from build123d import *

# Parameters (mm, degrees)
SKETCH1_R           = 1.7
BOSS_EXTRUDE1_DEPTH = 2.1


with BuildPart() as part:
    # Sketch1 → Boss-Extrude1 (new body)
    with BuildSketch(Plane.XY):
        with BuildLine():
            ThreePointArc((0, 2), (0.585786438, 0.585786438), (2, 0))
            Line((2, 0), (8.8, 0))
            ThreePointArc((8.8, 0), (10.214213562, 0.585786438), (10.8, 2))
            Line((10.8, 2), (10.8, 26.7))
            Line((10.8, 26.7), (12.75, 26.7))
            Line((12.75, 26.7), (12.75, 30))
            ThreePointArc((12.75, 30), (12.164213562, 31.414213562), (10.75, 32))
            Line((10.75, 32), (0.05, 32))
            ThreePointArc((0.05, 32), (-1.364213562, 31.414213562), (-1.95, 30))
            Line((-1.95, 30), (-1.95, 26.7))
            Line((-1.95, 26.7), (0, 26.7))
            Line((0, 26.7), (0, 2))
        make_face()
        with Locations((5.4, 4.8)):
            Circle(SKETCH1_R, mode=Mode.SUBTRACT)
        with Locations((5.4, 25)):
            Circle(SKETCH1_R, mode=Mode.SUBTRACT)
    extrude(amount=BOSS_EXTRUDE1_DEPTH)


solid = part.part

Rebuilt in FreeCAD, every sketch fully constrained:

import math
import FreeCAD as App
import Part
import Sketcher
from FreeCAD import Vector

doc = App.newDocument("Part")
params = doc.addObject("Spreadsheet::Sheet", "Params")
for row, (alias, value) in enumerate([
    ("sketch1_radius", "2 mm"),
    ("sketch1_diameter", "3.4 mm"),
    ("sketch1_width", "6.8 mm"),
    ("sketch1_width2", "10.7 mm"),
    ("sketch1_height", "24.7 mm"),
    ("pad1_length", "2.1 mm"),
], start=1):
    params.set(f"A{row}", alias)
    params.set(f"B{row}", "=" + value)
    params.setAlias(f"B{row}", alias)

body = doc.addObject("PartDesign::Body", "Body")

# Sketch on XY plane
sketch1 = doc.addObject("Sketcher::SketchObject", "Sketch")
body.addObject(sketch1)
sketch1.AttachmentSupport = (doc.XY_Plane, [""])
sketch1.MapMode = "FlatFace"
sketch1.addGeometry([
    Part.ArcOfCircle(Part.Circle(Vector(2, 2, 0), Vector(0, 0, 1), 2), math.radians(-180), math.radians(-90)),  # 0
    Part.LineSegment(Vector(2, 0, 0), Vector(8.8, 0, 0)),  # 1
    Part.ArcOfCircle(Part.Circle(Vector(8.8, 2, 0), Vector(0, 0, 1), 2), math.radians(-90), math.radians(0)),  # 2
    Part.LineSegment(Vector(10.8, 2, 0), Vector(10.8, 26.7, 0)),  # 3
    Part.LineSegment(Vector(10.8, 26.7, 0), Vector(12.8, 26.7, 0)),  # 4
    Part.LineSegment(Vector(12.8, 26.7, 0), Vector(12.8, 30, 0)),  # 5
    Part.ArcOfCircle(Part.Circle(Vector(10.7, 30, 0), Vector(0, 0, 1), 2), math.radians(0), math.radians(90)),  # 6
    Part.LineSegment(Vector(10.8, 32, 0), Vector(0.1, 32, 0)),  # 7
    Part.ArcOfCircle(Part.Circle(Vector(0.1, 30, 0), Vector(0, 0, 1), 2), math.radians(90), math.radians(180)),  # 8
    Part.LineSegment(Vector(-1.9, 30, 0), Vector(-1.9, 26.7, 0)),  # 9
    Part.LineSegment(Vector(-1.9, 26.7, 0), Vector(0, 26.7, 0)),  # 10
    Part.LineSegment(Vector(0, 26.7, 0), Vector(0, 2, 0)),  # 11
    Part.Circle(Vector(5.4, 4.8, 0), Vector(0, 0, 1), 1.7),  # 12
    Part.Circle(Vector(5.4, 25, 0), Vector(0, 0, 1), 1.7),  # 13
], False)
sketch1.addConstraint([
    Sketcher.Constraint("Tangent", 0, 2, 1, 1),
    Sketcher.Constraint("Tangent", 1, 2, 2, 1),
    Sketcher.Constraint("Tangent", 2, 2, 3, 1),
    Sketcher.Constraint("Coincident", 3, 2, 4, 1),
    Sketcher.Constraint("Coincident", 4, 2, 5, 1),
    Sketcher.Constraint("Tangent", 5, 2, 6, 1),
    Sketcher.Constraint("Tangent", 6, 2, 7, 1),
    Sketcher.Constraint("Tangent", 7, 2, 8, 1),
    Sketcher.Constraint("Tangent", 8, 2, 9, 1),
    Sketcher.Constraint("Coincident", 9, 2, 10, 1),
    Sketcher.Constraint("Coincident", 10, 2, 11, 1),
    Sketcher.Constraint("Tangent", 11, 2, 0, 1),
    Sketcher.Constraint("Horizontal", 1),
    Sketcher.Constraint("Vertical", 3),
    Sketcher.Constraint("Horizontal", 4),
    Sketcher.Constraint("Vertical", 5),
    Sketcher.Constraint("Horizontal", 7),
    Sketcher.Constraint("Vertical", 9),
    Sketcher.Constraint("Horizontal", 10),
    Sketcher.Constraint("Vertical", 11),
    Sketcher.Constraint("Equal", 0, 2),
    Sketcher.Constraint("Equal", 2, 6),
    Sketcher.Constraint("Equal", 6, 8),
    Sketcher.Constraint("Equal", 12, 13),
    Sketcher.Constraint("PointOnObject", 0, 2, -1),
    Sketcher.Constraint("PointOnObject", 10, 2, -2),
    Sketcher.Constraint("Horizontal", 4, 2, 9, 2),
    Sketcher.Constraint("Vertical", 12, 3, 13, 3),
    Sketcher.Constraint("Equal", 4, 10),
    Sketcher.Constraint("Radius", 0, 2.0),
    Sketcher.Constraint("Diameter", 12, 3.4),
    Sketcher.Constraint("DistanceX", 1, 1, 1, 2, 6.8),
    Sketcher.Constraint("DistanceX", 7, 2, 7, 1, 10.7),
    Sketcher.Constraint("DistanceY", 3, 1, 3, 2, 24.7),
    Sketcher.Constraint("DistanceY", 5, 1, 5, 2, 3.3),
    Sketcher.Constraint("DistanceY", -1, 1, 13, 3, 25.0),
    Sketcher.Constraint("DistanceX", -1, 1, 12, 3, 5.4),
    Sketcher.Constraint("DistanceY", -1, 1, 12, 3, 4.8),
])
sketch1.setExpression("Constraints[29]", "Params.sketch1_radius")
sketch1.setExpression("Constraints[30]", "Params.sketch1_diameter")
sketch1.setExpression("Constraints[31]", "Params.sketch1_width")
sketch1.setExpression("Constraints[32]", "Params.sketch1_width2")
sketch1.setExpression("Constraints[33]", "Params.sketch1_height")
pad1 = doc.addObject("PartDesign::Pad", "Pad")
body.addObject(pad1)
pad1.Profile = sketch1
pad1.setExpression("Length", "Params.pad1_length")

doc.recompute()
